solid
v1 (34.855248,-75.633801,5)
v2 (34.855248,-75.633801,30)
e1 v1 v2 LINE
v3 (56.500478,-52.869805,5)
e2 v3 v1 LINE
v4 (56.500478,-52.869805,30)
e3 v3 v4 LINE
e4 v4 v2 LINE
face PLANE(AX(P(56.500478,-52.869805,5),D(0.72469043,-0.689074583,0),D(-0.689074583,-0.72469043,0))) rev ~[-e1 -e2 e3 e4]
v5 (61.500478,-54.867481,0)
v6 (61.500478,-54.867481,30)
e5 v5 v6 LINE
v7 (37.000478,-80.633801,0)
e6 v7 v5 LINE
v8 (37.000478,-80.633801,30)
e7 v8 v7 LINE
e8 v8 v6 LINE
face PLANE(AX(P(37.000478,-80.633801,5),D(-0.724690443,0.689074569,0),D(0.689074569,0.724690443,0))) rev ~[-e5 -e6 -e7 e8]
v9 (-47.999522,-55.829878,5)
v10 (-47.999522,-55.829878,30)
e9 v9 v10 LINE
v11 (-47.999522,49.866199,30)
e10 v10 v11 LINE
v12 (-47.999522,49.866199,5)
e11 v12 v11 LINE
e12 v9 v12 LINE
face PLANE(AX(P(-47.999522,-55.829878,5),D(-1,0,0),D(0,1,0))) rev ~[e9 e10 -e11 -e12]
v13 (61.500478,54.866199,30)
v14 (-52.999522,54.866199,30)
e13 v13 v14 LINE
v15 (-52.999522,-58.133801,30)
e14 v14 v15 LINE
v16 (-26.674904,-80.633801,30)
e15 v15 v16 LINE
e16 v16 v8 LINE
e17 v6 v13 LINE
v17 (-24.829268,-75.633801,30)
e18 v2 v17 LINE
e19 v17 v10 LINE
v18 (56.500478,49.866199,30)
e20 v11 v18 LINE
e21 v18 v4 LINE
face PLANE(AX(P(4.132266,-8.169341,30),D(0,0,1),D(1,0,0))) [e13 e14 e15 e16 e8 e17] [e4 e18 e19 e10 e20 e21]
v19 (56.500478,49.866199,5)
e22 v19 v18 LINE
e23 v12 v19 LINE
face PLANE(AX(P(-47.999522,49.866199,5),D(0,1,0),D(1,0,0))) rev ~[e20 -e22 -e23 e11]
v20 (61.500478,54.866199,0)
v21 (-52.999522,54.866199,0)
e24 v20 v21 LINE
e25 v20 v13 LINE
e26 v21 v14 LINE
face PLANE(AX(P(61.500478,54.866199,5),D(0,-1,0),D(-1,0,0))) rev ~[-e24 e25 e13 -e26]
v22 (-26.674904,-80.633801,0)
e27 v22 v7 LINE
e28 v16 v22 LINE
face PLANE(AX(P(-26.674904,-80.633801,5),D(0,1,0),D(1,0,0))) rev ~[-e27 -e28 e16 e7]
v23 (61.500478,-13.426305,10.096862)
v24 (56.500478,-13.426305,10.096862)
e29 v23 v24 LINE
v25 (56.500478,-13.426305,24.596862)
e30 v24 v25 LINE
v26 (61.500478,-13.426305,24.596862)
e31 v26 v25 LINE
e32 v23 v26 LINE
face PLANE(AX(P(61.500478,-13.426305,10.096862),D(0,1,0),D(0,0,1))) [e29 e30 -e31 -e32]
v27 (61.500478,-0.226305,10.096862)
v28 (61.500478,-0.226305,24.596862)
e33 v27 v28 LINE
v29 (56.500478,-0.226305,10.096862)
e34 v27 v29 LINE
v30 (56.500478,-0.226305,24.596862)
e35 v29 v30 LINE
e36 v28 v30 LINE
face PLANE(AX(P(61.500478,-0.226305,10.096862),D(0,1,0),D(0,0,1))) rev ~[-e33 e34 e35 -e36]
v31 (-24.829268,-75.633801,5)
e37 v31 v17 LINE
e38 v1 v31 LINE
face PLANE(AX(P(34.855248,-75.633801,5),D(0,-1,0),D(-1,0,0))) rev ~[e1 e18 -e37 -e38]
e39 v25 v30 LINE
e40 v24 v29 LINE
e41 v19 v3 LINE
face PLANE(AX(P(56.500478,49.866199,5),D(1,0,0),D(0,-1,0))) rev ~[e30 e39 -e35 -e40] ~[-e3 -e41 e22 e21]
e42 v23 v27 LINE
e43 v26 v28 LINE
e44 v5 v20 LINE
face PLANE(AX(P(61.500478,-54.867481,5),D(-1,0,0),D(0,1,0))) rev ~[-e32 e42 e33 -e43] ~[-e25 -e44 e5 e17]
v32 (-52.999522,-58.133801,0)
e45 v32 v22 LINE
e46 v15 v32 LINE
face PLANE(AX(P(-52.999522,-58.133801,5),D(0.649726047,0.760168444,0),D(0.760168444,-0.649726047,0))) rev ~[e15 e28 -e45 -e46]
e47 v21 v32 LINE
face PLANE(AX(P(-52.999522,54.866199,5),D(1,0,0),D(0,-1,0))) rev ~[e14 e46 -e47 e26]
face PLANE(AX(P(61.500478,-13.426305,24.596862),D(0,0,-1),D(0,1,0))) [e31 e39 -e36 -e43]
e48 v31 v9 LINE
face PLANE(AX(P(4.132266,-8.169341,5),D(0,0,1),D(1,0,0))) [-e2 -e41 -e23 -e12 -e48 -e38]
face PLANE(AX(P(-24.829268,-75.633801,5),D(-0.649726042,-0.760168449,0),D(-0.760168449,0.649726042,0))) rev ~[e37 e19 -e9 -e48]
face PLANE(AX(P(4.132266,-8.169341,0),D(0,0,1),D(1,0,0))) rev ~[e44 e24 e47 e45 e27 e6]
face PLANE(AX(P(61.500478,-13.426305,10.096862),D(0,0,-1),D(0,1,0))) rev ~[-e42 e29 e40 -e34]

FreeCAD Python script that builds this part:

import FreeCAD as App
import Part
import Sketcher
from FreeCAD import Vector


def add_polygon(sketch, points):
    """Adds a closed chain of lines whose ends are joined by coincident constraints."""
    first, n = sketch.GeometryCount, len(points)
    for a, b in zip(points, points[1:] + points[:1]):
        sketch.addGeometry(Part.LineSegment(App.Vector(*a, 0), App.Vector(*b, 0)), False)
    for i in range(n):
        sketch.addConstraint(Sketcher.Constraint("Coincident", first + i, 2, first + (i + 1) % n, 1))

doc = App.newDocument("Part")
body = doc.addObject("PartDesign::Body", "Body")

# Sketch on XY plane
sketch1 = body.newObject("Sketcher::SketchObject", "Sketch")
sketch1.AttachmentSupport = (doc.getObject("XY_Plane"), [""])
sketch1.MapMode = "FlatFace"
add_polygon(sketch1, [(61.500478, 54.866199), (-52.999522, 54.866199), (-52.999522, -58.133801), (-26.674904, -80.633801), (37.000478, -80.633801), (61.500478, -54.867481)])  # lines 0-5
sketch1.addConstraint(Sketcher.Constraint("Horizontal", 0))
sketch1.addConstraint(Sketcher.Constraint("Vertical", 1))
sketch1.addConstraint(Sketcher.Constraint("Horizontal", 3))
sketch1.addConstraint(Sketcher.Constraint("Vertical", 5))
sketch1.addConstraint(Sketcher.Constraint("DistanceY", 1, 2, 1, 1, 113.0))
sketch1.addConstraint(Sketcher.Constraint("DistanceX", 0, 2, 0, 1, 114.5))
sketch1.addConstraint(Sketcher.Constraint("DistanceX", 1, 2, 3, 2, 90.0))
sketch1.addConstraint(Sketcher.Constraint("DistanceY", 2, 2, 1, 2, 22.5))
sketch1.addConstraint(Sketcher.Constraint("DistanceY", 5, 1, 5, 2, 109.73368))
sketch1.addConstraint(Sketcher.Constraint("DistanceY", -1, 1, 0, 2, 54.866199))
sketch1.addConstraint(Sketcher.Constraint("Distance", 2, 34.62998))
sketch1.addConstraint(Sketcher.Constraint("DistanceX", 0, 2, -1, 1, 52.999522))
pad1 = body.newObject("PartDesign::Pad", "Pad")
pad1.Profile = sketch1
pad1.Length = 5

# Sketch on XY plane
sketch2 = body.newObject("Sketcher::SketchObject", "Sketch001")
sketch2.AttachmentSupport = (doc.getObject("XY_Plane"), [""])
sketch2.MapMode = "FlatFace"
sketch2.AttachmentOffset = App.Placement(Vector(0, 0, 5), App.Rotation())
add_polygon(sketch2, [(37.000478, -80.633801), (61.500478, -54.867481), (61.500478, 54.866199), (-52.999522, 54.866199), (-52.999522, -58.133801), (-26.674904, -80.633801)])  # lines 0-5
add_polygon(sketch2, [(-24.829268, -75.633801), (-47.999522, -55.829878), (-47.999522, 49.866199), (56.500478, 49.866199), (56.500478, -52.869805), (34.855248, -75.633801)])  # lines 6-11
sketch2.addConstraint(Sketcher.Constraint("Vertical", 1))
sketch2.addConstraint(Sketcher.Constraint("Horizontal", 2))
sketch2.addConstraint(Sketcher.Constraint("Vertical", 3))
sketch2.addConstraint(Sketcher.Constraint("Horizontal", 5))
sketch2.addConstraint(Sketcher.Constraint("Vertical", 7))
sketch2.addConstraint(Sketcher.Constraint("Horizontal", 8))
sketch2.addConstraint(Sketcher.Constraint("Vertical", 9))
sketch2.addConstraint(Sketcher.Constraint("Horizontal", 11))
sketch2.addConstraint(Sketcher.Constraint("Parallel", 4, 6))
sketch2.addConstraint(Sketcher.Constraint("Parallel", 0, 10))
sketch2.addConstraint(Sketcher.Constraint("DistanceY", 3, 2, 3, 1, 113.0))
sketch2.addConstraint(Sketcher.Constraint("DistanceX", 2, 2, 2, 1, 114.5))
sketch2.addConstraint(Sketcher.Constraint("DistanceX", 8, 1, 8, 2, 104.5))
sketch2.addConstraint(Sketcher.Constraint("DistanceX", 3, 2, 5, 2, 90.0))
sketch2.addConstraint(Sketcher.Constraint("DistanceX", 3, 2, 6, 2, 5.0))
sketch2.addConstraint(Sketcher.Constraint("DistanceY", 7, 2, 2, 2, 5.0))
sketch2.addConstraint(Sketcher.Constraint("DistanceY", 5, 2, 10, 2, 5.0))
sketch2.addConstraint(Sketcher.Constraint("DistanceY", 4, 2, 3, 2, 22.5))
sketch2.addConstraint(Sketcher.Constraint("DistanceY", 1, 1, 1, 2, 109.73368))
sketch2.addConstraint(Sketcher.Constraint("DistanceY", -1, 1, 1, 2, 54.866199))
sketch2.addConstraint(Sketcher.Constraint("Distance", 4, 34.62998))
sketch2.addConstraint(Sketcher.Constraint("Distance", 6, 30.480421))
sketch2.addConstraint(Sketcher.Constraint("DistanceX", 11, 2, 11, 1, 59.684516))
sketch2.addConstraint(Sketcher.Constraint("DistanceX", -1, 1, 10, 2, 34.855248))
pad2 = body.newObject("PartDesign::Pad", "Pad001")
pad2.Profile = sketch2
pad2.Length = 25

# Sketch on YZ plane
sketch3 = body.newObject("Sketcher::SketchObject", "Sketch002")
sketch3.AttachmentSupport = (doc.getObject("YZ_Plane"), [""])
sketch3.MapMode = "FlatFace"
sketch3.AttachmentOffset = App.Placement(Vector(0, 0, 61.500478), App.Rotation())
add_polygon(sketch3, [(-13.426305, 24.596862), (-13.426305, 10.096862), (-0.226305, 10.096862), (-0.226305, 24.596862)])  # lines 0-3
sketch3.addConstraint(Sketcher.Constraint("Vertical", 0))
sketch3.addConstraint(Sketcher.Constraint("Horizontal", 1))
sketch3.addConstraint(Sketcher.Constraint("Vertical", 2))
sketch3.addConstraint(Sketcher.Constraint("Horizontal", 3))
sketch3.addConstraint(Sketcher.Constraint("DistanceX", 1, 1, 1, 2, 13.2))
sketch3.addConstraint(Sketcher.Constraint("DistanceY", 0, 2, 0, 1, 14.5))
sketch3.addConstraint(Sketcher.Constraint("DistanceX", 0, 2, -1, 1, 13.426305))
sketch3.addConstraint(Sketcher.Constraint("DistanceY", -1, 1, 0, 2, 10.096862))
pocket1 = body.newObject("PartDesign::Pocket", "Pocket")
pocket1.Profile = sketch3
pocket1.Length = 25

doc.recompute()
